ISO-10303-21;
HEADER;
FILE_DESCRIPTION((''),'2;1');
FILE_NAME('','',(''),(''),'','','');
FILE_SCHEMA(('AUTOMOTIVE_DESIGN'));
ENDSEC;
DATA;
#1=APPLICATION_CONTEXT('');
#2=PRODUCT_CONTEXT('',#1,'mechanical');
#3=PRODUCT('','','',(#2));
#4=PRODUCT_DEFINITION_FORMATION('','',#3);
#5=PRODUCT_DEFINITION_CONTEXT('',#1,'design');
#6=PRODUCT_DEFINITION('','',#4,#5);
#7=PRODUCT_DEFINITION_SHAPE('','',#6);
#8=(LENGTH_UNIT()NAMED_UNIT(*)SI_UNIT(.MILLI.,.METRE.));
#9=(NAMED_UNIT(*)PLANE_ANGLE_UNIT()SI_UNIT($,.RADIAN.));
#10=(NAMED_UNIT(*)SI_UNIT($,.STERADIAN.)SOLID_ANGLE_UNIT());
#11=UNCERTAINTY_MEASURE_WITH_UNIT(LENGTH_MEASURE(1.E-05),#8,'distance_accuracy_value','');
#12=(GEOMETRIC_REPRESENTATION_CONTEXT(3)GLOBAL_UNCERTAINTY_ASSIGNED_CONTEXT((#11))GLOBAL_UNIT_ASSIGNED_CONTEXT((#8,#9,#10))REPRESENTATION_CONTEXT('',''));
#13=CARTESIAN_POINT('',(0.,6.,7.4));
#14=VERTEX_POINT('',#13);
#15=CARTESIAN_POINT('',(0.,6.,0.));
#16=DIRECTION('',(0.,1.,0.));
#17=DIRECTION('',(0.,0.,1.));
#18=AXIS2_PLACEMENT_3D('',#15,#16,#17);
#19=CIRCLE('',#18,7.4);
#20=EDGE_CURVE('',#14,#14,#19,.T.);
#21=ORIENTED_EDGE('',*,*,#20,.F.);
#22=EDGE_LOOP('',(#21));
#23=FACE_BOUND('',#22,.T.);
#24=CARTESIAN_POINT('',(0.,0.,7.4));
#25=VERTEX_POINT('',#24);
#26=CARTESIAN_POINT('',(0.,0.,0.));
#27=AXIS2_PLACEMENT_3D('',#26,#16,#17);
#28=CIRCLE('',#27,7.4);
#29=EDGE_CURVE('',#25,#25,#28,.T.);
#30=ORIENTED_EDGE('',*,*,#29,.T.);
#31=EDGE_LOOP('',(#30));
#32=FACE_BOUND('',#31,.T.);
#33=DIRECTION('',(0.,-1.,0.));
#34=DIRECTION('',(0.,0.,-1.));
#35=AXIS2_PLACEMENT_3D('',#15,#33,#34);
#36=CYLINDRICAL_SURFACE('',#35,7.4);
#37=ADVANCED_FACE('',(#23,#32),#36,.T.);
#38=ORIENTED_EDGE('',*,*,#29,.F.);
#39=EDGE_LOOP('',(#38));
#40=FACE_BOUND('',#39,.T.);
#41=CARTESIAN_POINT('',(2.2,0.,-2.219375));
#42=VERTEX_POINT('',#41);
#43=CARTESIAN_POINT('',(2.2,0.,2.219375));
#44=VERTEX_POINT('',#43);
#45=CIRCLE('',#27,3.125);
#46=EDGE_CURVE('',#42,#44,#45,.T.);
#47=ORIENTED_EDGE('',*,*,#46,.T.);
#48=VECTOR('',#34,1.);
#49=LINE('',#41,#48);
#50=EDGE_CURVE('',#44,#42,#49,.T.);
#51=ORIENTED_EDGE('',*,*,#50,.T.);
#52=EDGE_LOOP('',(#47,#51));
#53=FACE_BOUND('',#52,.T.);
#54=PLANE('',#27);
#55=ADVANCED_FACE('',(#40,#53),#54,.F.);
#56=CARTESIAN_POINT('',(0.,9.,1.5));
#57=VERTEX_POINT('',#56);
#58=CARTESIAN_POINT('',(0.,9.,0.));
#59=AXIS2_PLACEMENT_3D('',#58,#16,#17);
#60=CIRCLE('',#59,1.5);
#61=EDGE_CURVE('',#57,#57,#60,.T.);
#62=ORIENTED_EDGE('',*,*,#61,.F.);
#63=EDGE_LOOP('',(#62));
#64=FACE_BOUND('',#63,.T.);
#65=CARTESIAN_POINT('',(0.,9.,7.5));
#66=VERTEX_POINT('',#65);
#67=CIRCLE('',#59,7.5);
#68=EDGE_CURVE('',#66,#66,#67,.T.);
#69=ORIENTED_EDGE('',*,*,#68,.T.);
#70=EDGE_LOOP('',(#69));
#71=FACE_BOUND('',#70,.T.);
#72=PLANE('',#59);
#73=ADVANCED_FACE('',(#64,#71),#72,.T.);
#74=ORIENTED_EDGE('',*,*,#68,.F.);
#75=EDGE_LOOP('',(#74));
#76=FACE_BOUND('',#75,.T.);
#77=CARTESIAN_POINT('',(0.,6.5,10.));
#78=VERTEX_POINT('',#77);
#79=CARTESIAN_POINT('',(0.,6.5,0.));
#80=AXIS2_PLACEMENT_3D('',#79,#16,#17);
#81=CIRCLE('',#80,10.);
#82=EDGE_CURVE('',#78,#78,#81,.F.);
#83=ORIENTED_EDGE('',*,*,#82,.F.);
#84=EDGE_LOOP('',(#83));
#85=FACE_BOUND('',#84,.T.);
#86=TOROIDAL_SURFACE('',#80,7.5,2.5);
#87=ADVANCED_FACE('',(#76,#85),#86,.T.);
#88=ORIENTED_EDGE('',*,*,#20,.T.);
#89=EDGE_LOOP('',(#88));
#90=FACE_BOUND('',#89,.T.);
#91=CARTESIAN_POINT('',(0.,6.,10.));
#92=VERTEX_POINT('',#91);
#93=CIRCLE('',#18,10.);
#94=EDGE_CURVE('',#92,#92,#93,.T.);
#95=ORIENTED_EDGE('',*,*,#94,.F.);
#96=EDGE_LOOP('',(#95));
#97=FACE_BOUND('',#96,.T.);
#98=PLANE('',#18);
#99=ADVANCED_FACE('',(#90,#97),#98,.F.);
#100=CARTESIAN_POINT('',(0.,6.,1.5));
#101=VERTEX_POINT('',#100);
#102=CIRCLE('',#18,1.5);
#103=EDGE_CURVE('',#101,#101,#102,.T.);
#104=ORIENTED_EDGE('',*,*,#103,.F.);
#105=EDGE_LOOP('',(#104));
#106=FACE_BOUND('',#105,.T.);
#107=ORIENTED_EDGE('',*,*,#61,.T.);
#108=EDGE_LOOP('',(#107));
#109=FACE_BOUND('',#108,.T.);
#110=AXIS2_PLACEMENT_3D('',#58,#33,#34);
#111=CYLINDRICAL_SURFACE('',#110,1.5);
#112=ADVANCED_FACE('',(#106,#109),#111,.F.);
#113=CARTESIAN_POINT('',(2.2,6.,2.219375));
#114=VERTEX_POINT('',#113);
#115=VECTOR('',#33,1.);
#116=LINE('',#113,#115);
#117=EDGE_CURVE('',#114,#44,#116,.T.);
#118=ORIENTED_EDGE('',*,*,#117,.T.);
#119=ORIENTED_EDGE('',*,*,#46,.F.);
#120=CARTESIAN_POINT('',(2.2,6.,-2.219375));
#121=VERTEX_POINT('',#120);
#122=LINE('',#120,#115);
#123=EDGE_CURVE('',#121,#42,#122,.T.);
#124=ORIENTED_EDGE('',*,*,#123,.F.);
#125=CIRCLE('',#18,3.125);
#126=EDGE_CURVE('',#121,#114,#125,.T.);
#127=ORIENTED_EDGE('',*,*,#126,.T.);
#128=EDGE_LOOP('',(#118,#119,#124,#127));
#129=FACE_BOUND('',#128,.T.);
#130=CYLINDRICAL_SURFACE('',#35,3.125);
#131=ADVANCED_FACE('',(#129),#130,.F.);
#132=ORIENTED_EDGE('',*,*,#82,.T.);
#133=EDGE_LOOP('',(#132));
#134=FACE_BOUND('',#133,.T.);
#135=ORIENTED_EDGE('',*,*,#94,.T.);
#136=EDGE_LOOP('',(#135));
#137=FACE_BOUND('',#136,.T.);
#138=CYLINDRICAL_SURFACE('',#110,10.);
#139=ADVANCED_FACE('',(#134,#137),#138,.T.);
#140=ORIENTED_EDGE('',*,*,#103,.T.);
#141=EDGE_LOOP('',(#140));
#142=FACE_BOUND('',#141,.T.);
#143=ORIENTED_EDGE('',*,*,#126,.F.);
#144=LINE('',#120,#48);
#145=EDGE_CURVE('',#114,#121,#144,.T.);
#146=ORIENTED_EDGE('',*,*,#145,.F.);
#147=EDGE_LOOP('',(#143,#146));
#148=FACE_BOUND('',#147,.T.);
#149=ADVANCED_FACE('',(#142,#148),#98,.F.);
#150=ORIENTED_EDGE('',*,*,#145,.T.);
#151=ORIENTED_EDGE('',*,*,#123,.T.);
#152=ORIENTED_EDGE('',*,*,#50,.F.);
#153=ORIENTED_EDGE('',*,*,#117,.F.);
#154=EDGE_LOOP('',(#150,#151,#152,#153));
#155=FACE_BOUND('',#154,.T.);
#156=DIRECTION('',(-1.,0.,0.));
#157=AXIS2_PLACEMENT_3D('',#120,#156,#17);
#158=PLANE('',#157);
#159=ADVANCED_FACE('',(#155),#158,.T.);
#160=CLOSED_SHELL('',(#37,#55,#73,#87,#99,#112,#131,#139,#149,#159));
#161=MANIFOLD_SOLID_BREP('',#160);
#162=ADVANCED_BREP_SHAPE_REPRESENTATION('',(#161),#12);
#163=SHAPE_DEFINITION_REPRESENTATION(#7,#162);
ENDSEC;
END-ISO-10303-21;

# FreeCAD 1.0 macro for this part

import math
import FreeCAD as App
import Part
import Sketcher


def edges_at(feature, points):
    """Names of the edges that pass closest to the given points."""
    edges = feature.Shape.Edges
    near = lambda p: min(range(len(edges)), key=lambda i: edges[i].distToShape(Part.Vertex(*p))[0])
    return sorted({f"Edge{near(p) + 1}" for p in points})

doc = App.newDocument("Part")
body = doc.addObject("PartDesign::Body", "Body")

# Sketch on XZ plane
sketch1 = body.newObject("Sketcher::SketchObject", "Sketch")
sketch1.AttachmentSupport = (doc.getObject("XZ_Plane"), [""])
sketch1.MapMode = "FlatFace"
sketch1.addGeometry([
    Part.Circle(App.Vector(0, 0, 0), App.Vector(0, 0, 1), 7.4),
    Part.ArcOfCircle(Part.Circle(App.Vector(0, 0, 0), App.Vector(0, 0, 1), 3.125), math.radians(45.251188), math.radians(314.748812)),
    Part.LineSegment(App.Vector(2.2, -2.219375, 0), App.Vector(2.2, 2.219375, 0)),
], False)
sketch1.addConstraint([
    Sketcher.Constraint("Coincident", 1, 1, 2, 2),
    Sketcher.Constraint("Coincident", 2, 1, 1, 2),
    Sketcher.Constraint("Vertical", 2),
    Sketcher.Constraint("Coincident", 0, 3, -1, 1),
    Sketcher.Constraint("Coincident", 1, 3, -1, 1),
    Sketcher.Constraint("Diameter", 0, 14.8),
    Sketcher.Constraint("Radius", 1, 3.125),
    Sketcher.Constraint("DistanceX", -1, 1, 1, 1, 2.2),
])
pad1 = body.newObject("PartDesign::Pad", "Pad")
pad1.Profile = sketch1
pad1.Length = 6
pad1.Reversed = True

# Sketch on XZ plane
sketch2 = body.newObject("Sketcher::SketchObject", "Sketch001")
sketch2.AttachmentSupport = (doc.getObject("XZ_Plane"), [""])
sketch2.MapMode = "FlatFace"
sketch2.AttachmentOffset = App.Placement(App.Vector(0, 0, -6), App.Rotation())
sketch2.addGeometry([
    Part.Circle(App.Vector(0, 0, 0), App.Vector(0, 0, 1), 10),
    Part.Circle(App.Vector(0, 0, 0), App.Vector(0, 0, 1), 1.5),
], False)
sketch2.addConstraint([
    Sketcher.Constraint("Coincident", 0, 3, -1, 1),
    Sketcher.Constraint("Coincident", 1, 3, -1, 1),
    Sketcher.Constraint("Diameter", 0, 20.0),
    Sketcher.Constraint("Diameter", 1, 3.0),
])
pad2 = body.newObject("PartDesign::Pad", "Pad001")
pad2.Profile = sketch2
pad2.Length = 3
pad2.Reversed = True
doc.recompute()

fillet = body.newObject("PartDesign::Fillet", "Fillet")
fillet.Base = (pad2, edges_at(pad2, [(0, 9, -10)]))
fillet.Radius = 2.5

doc.recompute()
